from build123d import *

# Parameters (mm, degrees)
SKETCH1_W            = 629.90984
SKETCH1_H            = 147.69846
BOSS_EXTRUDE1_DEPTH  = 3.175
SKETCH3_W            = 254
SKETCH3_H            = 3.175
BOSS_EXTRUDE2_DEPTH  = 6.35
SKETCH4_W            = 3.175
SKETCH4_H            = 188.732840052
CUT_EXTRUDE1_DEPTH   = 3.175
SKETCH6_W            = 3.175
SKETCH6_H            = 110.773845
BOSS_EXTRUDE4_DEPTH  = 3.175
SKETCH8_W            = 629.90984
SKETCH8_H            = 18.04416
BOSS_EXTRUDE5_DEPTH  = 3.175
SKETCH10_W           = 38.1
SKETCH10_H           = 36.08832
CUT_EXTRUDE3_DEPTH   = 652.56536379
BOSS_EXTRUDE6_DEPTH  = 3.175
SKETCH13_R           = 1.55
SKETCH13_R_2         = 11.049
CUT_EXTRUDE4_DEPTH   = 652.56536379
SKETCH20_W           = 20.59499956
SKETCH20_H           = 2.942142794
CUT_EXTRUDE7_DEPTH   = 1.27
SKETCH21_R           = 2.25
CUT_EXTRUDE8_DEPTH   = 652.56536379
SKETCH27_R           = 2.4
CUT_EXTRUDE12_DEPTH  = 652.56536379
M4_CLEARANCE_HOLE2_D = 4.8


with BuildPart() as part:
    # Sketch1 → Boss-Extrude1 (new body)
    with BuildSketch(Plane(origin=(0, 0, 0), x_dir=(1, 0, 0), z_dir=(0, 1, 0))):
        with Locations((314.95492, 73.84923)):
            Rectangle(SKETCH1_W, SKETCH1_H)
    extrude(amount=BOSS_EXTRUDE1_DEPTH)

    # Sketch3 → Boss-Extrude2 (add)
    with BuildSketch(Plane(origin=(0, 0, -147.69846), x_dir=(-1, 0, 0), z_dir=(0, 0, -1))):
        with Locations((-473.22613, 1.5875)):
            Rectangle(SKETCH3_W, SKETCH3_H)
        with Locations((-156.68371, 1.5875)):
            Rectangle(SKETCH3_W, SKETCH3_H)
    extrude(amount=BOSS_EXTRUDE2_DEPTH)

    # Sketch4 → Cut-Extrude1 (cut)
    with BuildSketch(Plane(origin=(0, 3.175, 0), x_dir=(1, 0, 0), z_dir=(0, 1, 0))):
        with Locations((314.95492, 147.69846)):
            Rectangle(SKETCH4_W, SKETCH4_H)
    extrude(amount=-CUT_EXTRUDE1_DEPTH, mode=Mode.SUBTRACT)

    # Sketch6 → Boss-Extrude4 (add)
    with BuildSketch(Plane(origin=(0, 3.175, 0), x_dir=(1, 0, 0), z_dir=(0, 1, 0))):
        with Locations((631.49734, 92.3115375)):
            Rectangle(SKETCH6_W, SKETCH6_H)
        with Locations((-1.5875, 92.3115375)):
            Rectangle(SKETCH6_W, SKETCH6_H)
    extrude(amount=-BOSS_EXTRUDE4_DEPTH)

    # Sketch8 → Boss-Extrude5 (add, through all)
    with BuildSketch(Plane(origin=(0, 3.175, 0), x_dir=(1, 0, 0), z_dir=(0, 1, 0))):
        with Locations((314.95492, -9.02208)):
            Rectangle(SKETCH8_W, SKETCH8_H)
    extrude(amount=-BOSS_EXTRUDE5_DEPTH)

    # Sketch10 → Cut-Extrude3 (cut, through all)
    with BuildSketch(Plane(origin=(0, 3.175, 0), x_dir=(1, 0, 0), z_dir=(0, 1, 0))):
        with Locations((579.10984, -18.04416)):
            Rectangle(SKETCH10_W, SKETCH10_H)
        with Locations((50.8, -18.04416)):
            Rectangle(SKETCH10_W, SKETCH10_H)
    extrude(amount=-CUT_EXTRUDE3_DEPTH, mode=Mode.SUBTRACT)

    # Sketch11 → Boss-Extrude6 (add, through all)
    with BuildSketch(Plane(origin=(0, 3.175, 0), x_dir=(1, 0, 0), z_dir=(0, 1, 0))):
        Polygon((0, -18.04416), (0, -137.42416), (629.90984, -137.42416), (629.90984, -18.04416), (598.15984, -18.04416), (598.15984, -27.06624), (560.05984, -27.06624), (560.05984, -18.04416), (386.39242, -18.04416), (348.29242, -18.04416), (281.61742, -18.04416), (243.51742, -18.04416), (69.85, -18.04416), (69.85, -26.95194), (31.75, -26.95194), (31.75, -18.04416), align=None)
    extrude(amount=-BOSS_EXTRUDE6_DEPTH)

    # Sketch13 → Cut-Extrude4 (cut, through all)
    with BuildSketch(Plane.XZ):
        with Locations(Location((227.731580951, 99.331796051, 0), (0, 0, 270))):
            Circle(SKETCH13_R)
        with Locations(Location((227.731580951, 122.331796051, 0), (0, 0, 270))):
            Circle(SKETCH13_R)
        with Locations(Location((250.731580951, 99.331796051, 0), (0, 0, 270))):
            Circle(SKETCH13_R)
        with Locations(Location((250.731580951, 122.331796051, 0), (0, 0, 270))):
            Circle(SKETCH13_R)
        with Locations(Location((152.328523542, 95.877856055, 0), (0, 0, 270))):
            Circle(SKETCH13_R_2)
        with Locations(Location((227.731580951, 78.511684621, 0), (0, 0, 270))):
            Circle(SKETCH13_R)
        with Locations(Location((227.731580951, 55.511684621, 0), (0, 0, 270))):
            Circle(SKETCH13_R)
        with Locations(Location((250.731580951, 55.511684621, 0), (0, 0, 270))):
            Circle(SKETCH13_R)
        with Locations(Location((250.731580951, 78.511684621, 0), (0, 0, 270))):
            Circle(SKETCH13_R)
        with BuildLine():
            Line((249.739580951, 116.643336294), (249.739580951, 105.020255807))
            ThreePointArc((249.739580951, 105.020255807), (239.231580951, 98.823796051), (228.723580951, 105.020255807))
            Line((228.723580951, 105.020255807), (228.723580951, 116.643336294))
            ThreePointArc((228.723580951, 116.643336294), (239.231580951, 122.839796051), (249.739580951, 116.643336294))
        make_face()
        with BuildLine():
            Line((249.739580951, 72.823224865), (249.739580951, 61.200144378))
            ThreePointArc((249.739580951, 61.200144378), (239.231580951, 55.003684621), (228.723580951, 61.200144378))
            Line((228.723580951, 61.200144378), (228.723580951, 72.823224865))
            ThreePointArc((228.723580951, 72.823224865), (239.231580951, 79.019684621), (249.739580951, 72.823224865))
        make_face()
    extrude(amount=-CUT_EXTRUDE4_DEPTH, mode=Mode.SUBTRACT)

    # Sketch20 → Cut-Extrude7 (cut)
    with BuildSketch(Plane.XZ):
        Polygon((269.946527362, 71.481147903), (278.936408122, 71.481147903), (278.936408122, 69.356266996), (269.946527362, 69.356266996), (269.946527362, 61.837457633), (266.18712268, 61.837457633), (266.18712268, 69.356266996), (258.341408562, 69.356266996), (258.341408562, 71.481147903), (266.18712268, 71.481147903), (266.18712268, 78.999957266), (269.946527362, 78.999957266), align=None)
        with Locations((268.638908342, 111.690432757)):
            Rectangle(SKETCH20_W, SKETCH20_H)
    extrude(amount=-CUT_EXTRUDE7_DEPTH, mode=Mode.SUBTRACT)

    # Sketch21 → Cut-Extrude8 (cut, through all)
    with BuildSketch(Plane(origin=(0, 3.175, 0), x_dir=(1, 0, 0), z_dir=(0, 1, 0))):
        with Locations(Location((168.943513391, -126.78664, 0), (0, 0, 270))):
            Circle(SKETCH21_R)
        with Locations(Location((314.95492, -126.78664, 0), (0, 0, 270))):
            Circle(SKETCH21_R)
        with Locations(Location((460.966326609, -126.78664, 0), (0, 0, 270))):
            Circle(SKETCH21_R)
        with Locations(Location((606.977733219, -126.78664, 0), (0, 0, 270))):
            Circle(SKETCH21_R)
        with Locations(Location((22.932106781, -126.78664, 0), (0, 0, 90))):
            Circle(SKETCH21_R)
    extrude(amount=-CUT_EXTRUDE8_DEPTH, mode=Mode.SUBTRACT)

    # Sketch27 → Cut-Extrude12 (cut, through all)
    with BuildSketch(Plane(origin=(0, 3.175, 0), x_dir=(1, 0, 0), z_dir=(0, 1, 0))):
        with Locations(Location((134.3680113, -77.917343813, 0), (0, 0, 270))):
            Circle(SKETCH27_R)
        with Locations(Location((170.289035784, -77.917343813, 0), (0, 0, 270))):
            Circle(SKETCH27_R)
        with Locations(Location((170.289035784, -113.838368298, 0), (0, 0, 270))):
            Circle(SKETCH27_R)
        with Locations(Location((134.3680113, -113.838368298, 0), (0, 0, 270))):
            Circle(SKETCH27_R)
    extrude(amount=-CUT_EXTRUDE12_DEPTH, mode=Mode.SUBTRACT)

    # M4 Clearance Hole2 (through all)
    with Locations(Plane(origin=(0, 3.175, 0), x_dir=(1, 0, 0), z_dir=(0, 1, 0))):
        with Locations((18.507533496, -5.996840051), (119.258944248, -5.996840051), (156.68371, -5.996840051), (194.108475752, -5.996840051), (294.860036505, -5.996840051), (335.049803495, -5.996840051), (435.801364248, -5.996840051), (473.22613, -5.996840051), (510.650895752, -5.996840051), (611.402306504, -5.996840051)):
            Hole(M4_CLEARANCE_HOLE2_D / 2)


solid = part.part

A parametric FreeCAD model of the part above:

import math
import FreeCAD as App
import Part
import Sketcher
Q = App.Units.Quantity


def add_polygon(sketch, points):
    """Adds a closed chain of lines whose ends are joined by coincident constraints."""
    first, n = sketch.GeometryCount, len(points)
    for a, b in zip(points, points[1:] + points[:1]):
        sketch.addGeometry(Part.LineSegment(App.Vector(*a, 0), App.Vector(*b, 0)), False)
    for i in range(n):
        sketch.addConstraint(Sketcher.Constraint("Coincident", first + i, 2, first + (i + 1) % n, 1))

doc = App.newDocument("Part")
body = doc.addObject("PartDesign::Body", "Body")

# Sketch on XZ plane
sketch1 = body.newObject("Sketcher::SketchObject", "Sketch")
sketch1.AttachmentSupport = (doc.getObject("XZ_Plane"), [""])
sketch1.MapMode = "FlatFace"
add_polygon(sketch1, [(0, -148), (0, 0), (630, 0), (630, -148)])  # lines 0-3
sketch1.addConstraint([
    Sketcher.Constraint("Vertical", 0),
    Sketcher.Constraint("Horizontal", 1),
    Sketcher.Constraint("Vertical", 2),
    Sketcher.Constraint("Horizontal", 3),
    Sketcher.Constraint("Coincident", 0, 2, -1, 1),
    Sketcher.Constraint("DistanceX", 1, 1, 1, 2, Q("24.7996 in")),
    Sketcher.Constraint("DistanceY", 0, 1, 0, 2, Q("5.8149 in")),
])
pad1 = body.newObject("PartDesign::Pad", "Pad")
pad1.Profile = sketch1
pad1.Length = Q("0.125 in")
pad1.Reversed = True

# Sketch on XY plane
sketch2 = body.newObject("Sketcher::SketchObject", "Sketch001")
sketch2.AttachmentSupport = (doc.getObject("XY_Plane"), [""])
sketch2.MapMode = "FlatFace"
sketch2.AttachmentOffset = App.Placement(App.Vector(0, 0, -5.8149 * 25.4), App.Rotation())
add_polygon(sketch2, [(600.2, 3.2), (600.2, 0), (346.2, 0), (346.2, 3.2)])  # lines 0-3
add_polygon(sketch2, [(283.7, 3.2), (283.7, 0), (29.7, 0), (29.7, 3.2)])  # lines 4-7
sketch2.addConstraint([
    Sketcher.Constraint("Vertical", 0),
    Sketcher.Constraint("Horizontal", 1),
    Sketcher.Constraint("Vertical", 2),
    Sketcher.Constraint("Horizontal", 3),
    Sketcher.Constraint("Vertical", 4),
    Sketcher.Constraint("Horizontal", 5),
    Sketcher.Constraint("Vertical", 6),
    Sketcher.Constraint("Horizontal", 7),
    Sketcher.Constraint("PointOnObject", 0, 2, -1),
    Sketcher.Constraint("PointOnObject", 4, 2, -1),
    Sketcher.Constraint("Horizontal", 3, 2, 6, 2),
    Sketcher.Constraint("Equal", 3, 5),
    Sketcher.Constraint("DistanceX", 1, 2, 1, 1, Q("10 in")),
    Sketcher.Constraint("DistanceY", 0, 2, 0, 1, Q("0.125 in")),
    Sketcher.Constraint("DistanceX", 4, 2, 1, 2, Q("2.4623 in")),
    Sketcher.Constraint("DistanceX", -1, 1, 0, 2, 600.22613),
])
pad2 = body.newObject("PartDesign::Pad", "Pad001")
pad2.Profile = sketch2
pad2.Length = Q("0.25 in")
pad2.Reversed = True

# Sketch on XZ plane
sketch3 = body.newObject("Sketcher::SketchObject", "Sketch002")
sketch3.AttachmentSupport = (doc.getObject("XZ_Plane"), [""])
sketch3.MapMode = "FlatFace"
sketch3.AttachmentOffset = App.Placement(App.Vector(0, 0, -0.125 * 25.4), App.Rotation())
add_polygon(sketch3, [(313.4, -242.1), (313.4, -53.3), (316.5, -53.3), (316.5, -242.1)])  # lines 0-3
sketch3.addConstraint([
    Sketcher.Constraint("Vertical", 0),
    Sketcher.Constraint("Horizontal", 1),
    Sketcher.Constraint("Vertical", 2),
    Sketcher.Constraint("Horizontal", 3),
    Sketcher.Constraint("DistanceX", 1, 1, 1, 2, Q("0.125 in")),
    Sketcher.Constraint("DistanceX", -1, 1, 0, 2, Q("12.3373 in")),
    Sketcher.Constraint("DistanceY", 0, 1, 0, 2, 188.73284),
    Sketcher.Constraint("DistanceY", 0, 2, -1, 1, 53.33204),
])
pocket1 = body.newObject("PartDesign::Pocket", "Pocket")
pocket1.Profile = sketch3
pocket1.Length = Q("0.125 in")
pocket1.Reversed = True

# Sketch on XZ plane
sketch4 = body.newObject("Sketcher::SketchObject", "Sketch003")
sketch4.AttachmentSupport = (doc.getObject("XZ_Plane"), [""])
sketch4.MapMode = "FlatFace"
sketch4.AttachmentOffset = App.Placement(App.Vector(0, 0, -0.125 * 25.4), App.Rotation())
add_polygon(sketch4, [(629.9, -147.7), (629.9, -36.9), (633.1, -36.9), (633.1, -147.7)])  # lines 0-3
add_polygon(sketch4, [(-3.2, -147.7), (-3.2, -36.9), (0, -36.9), (0, -147.7)])  # lines 4-7
sketch4.addConstraint([
    Sketcher.Constraint("Vertical", 0),
    Sketcher.Constraint("Horizontal", 1),
    Sketcher.Constraint("Vertical", 2),
    Sketcher.Constraint("Horizontal", 3),
    Sketcher.Constraint("Vertical", 4),
    Sketcher.Constraint("Horizontal", 5),
    Sketcher.Constraint("Vertical", 6),
    Sketcher.Constraint("Horizontal", 7),
    Sketcher.Constraint("PointOnObject", 5, 2, -2),
    Sketcher.Constraint("Horizontal", 1, 2, 4, 2),
    Sketcher.Constraint("Horizontal", 3, 2, 6, 2),
    Sketcher.Constraint("Equal", 3, 5),
    Sketcher.Constraint("DistanceX", 1, 1, 1, 2, Q("0.125 in")),
    Sketcher.Constraint("DistanceX", -1, 1, 0, 2, Q("24.7996 in")),
    Sketcher.Constraint("DistanceY", 2, 2, -1, 1, Q("5.8149 in")),
    Sketcher.Constraint("DistanceY", 0, 1, 0, 2, 110.773845),
])
pad3 = body.newObject("PartDesign::Pad", "Pad002")
pad3.Profile = sketch4
pad3.Length = Q("0.125 in")

# Sketch on XZ plane
sketch5 = body.newObject("Sketcher::SketchObject", "Sketch004")
sketch5.AttachmentSupport = (doc.getObject("XZ_Plane"), [""])
sketch5.MapMode = "FlatFace"
sketch5.AttachmentOffset = App.Placement(App.Vector(0, 0, -0.125 * 25.4), App.Rotation())
add_polygon(sketch5, [(0, 0), (0, 18), (630, 18), (630, 0)])  # lines 0-3
sketch5.addConstraint([
    Sketcher.Constraint("Vertical", 0),
    Sketcher.Constraint("Horizontal", 1),
    Sketcher.Constraint("Vertical", 2),
    Sketcher.Constraint("Horizontal", 3),
    Sketcher.Constraint("Coincident", 3, 2, -1, 1),
    Sketcher.Constraint("DistanceX", 1, 1, 1, 2, Q("24.7996 in")),
    Sketcher.Constraint("DistanceY", 0, 1, 0, 2, Q("0.7104 in")),
])
pad4 = body.newObject("PartDesign::Pad", "Pad003")
pad4.Profile = sketch5
pad4.Length = Q("0.125 in")

# Sketch on XZ plane
sketch6 = body.newObject("Sketcher::SketchObject", "Sketch005")
sketch6.AttachmentSupport = (doc.getObject("XZ_Plane"), [""])
sketch6.MapMode = "FlatFace"
sketch6.AttachmentOffset = App.Placement(App.Vector(0, 0, -0.125 * 25.4), App.Rotation())
add_polygon(sketch6, [(560, 0), (560, 36), (598, 36), (598, 0)])  # lines 0-3
add_polygon(sketch6, [(32, 0), (32, 36), (70, 36), (70, 0)])  # lines 4-7
sketch6.addConstraint([
    Sketcher.Constraint("Vertical", 0),
    Sketcher.Constraint("Horizontal", 1),
    Sketcher.Constraint("Vertical", 2),
    Sketcher.Constraint("Horizontal", 3),
    Sketcher.Constraint("Vertical", 4),
    Sketcher.Constraint("Horizontal", 5),
    Sketcher.Constraint("Vertical", 6),
    Sketcher.Constraint("Horizontal", 7),
    Sketcher.Constraint("PointOnObject", 2, 2, -1),
    Sketcher.Constraint("PointOnObject", 6, 2, -1),
    Sketcher.Constraint("Horizontal", 1, 2, 4, 2),
    Sketcher.Constraint("Equal", 3, 5),
    Sketcher.Constraint("DistanceX", 1, 1, 1, 2, Q("1.5 in")),
    Sketcher.Constraint("DistanceX", -1, 1, 4, 2, Q("1.25 in")),
    Sketcher.Constraint("DistanceY", 0, 1, 0, 2, Q("1.4208 in")),
    Sketcher.Constraint("DistanceX", -1, 1, 0, 2, Q("22.0496 in")),
])
pocket2 = body.newObject("PartDesign::Pocket", "Pocket001")
pocket2.Profile = sketch6
pocket2.Type = "ThroughAll"
pocket2.Reversed = True

# Sketch on XZ plane
sketch7 = body.newObject("Sketcher::SketchObject", "Sketch006")
sketch7.AttachmentSupport = (doc.getObject("XZ_Plane"), [""])
sketch7.MapMode = "FlatFace"
sketch7.AttachmentOffset = App.Placement(App.Vector(0, 0, -0.125 * 25.4), App.Rotation())
add_polygon(sketch7, [(0, 18), (0, 137), (630, 137), (630, 18), (598, 18), (598, 27), (560, 27), (560, 18), (70, 18), (70, 27), (32, 27), (32, 18)])  # lines 0-11
sketch7.addConstraint([
    Sketcher.Constraint("Vertical", 0),
    Sketcher.Constraint("Horizontal", 1),
    Sketcher.Constraint("Vertical", 2),
    Sketcher.Constraint("Horizontal", 3),
    Sketcher.Constraint("Vertical", 4),
    Sketcher.Constraint("Horizontal", 5),
    Sketcher.Constraint("Vertical", 6),
    Sketcher.Constraint("Horizontal", 7),
    Sketcher.Constraint("Vertical", 8),
    Sketcher.Constraint("Horizontal", 9),
    Sketcher.Constraint("Vertical", 10),
    Sketcher.Constraint("Horizontal", 11),
    Sketcher.Constraint("PointOnObject", 0, 2, -2),
    Sketcher.Constraint("Horizontal", 3, 2, 6, 2),
    Sketcher.Constraint("Horizontal", 7, 2, 10, 2),
    Sketcher.Constraint("Equal", 5, 9),
    Sketcher.Constraint("Equal", 3, 11),
    Sketcher.Constraint("DistanceX", 5, 2, 5, 1, Q("1.5 in")),
    Sketcher.Constraint("DistanceY", 0, 1, 0, 2, Q("4.7 in")),
    Sketcher.Constraint("DistanceX", 3, 2, 3, 1, Q("1.25 in")),
    Sketcher.Constraint("DistanceX", 1, 1, 1, 2, Q("24.7996 in")),
    Sketcher.Constraint("DistanceY", 4, 1, 4, 2, Q("0.3552 in")),
    Sketcher.Constraint("DistanceY", 8, 1, 8, 2, Q("0.3507 in")),
    Sketcher.Constraint("DistanceY", -1, 1, 0, 2, Q("5.4104 in")),
])
pad5 = body.newObject("PartDesign::Pad", "Pad004")
pad5.Profile = sketch7
pad5.Length = Q("0.125 in")

# Sketch on XZ plane
sketch8 = body.newObject("Sketcher::SketchObject", "Sketch007")
sketch8.AttachmentSupport = (doc.getObject("XZ_Plane"), [""])
sketch8.MapMode = "FlatFace"
sketch8.addGeometry([
    Part.Circle(App.Vector(227.7, 99.3, 0), App.Vector(0, 0, 1), 1.6),  # 0
    Part.Circle(App.Vector(227.7, 122.3, 0), App.Vector(0, 0, 1), 1.6),  # 1
    Part.Circle(App.Vector(250.7, 99.3, 0), App.Vector(0, 0, 1), 1.6),  # 2
    Part.Circle(App.Vector(250.7, 122.3, 0), App.Vector(0, 0, 1), 1.6),  # 3
    Part.Circle(App.Vector(152.3, 95.9, 0), App.Vector(0, 0, 1), 11),  # 4
    Part.Circle(App.Vector(227.7, 78.5, 0), App.Vector(0, 0, 1), 1.6),  # 5
    Part.Circle(App.Vector(227.7, 55.5, 0), App.Vector(0, 0, 1), 1.6),  # 6
    Part.Circle(App.Vector(250.7, 55.5, 0), App.Vector(0, 0, 1), 1.6),  # 7
    Part.Circle(App.Vector(250.7, 78.5, 0), App.Vector(0, 0, 1), 1.6),  # 8
    Part.LineSegment(App.Vector(249.7, 105, 0), App.Vector(249.7, 116.6, 0)),  # 9
    Part.ArcOfCircle(Part.Circle(App.Vector(239.2, 110.8, 0), App.Vector(0, 0, 1), 12), math.radians(29), math.radians(151)),  # 10
    Part.LineSegment(App.Vector(228.7, 116.6, 0), App.Vector(228.7, 105, 0)),  # 11
    Part.ArcOfCircle(Part.Circle(App.Vector(239.2, 110.8, 0), App.Vector(0, 0, 1), 12), math.radians(-151), math.radians(-29)),  # 12
    Part.LineSegment(App.Vector(249.7, 61.2, 0), App.Vector(249.7, 72.8, 0)),  # 13
    Part.ArcOfCircle(Part.Circle(App.Vector(239.2, 67, 0), App.Vector(0, 0, 1), 12), math.radians(29), math.radians(151)),  # 14
    Part.LineSegment(App.Vector(228.7, 72.8, 0), App.Vector(228.7, 61.2, 0)),  # 15
    Part.ArcOfCircle(Part.Circle(App.Vector(239.2, 67, 0), App.Vector(0, 0, 1), 12), math.radians(-151), math.radians(-29)),  # 16
], False)
sketch8.addConstraint([
    Sketcher.Constraint("Coincident", 9, 2, 10, 1),
    Sketcher.Constraint("Coincident", 10, 2, 11, 1),
    Sketcher.Constraint("Coincident", 11, 2, 12, 1),
    Sketcher.Constraint("Coincident", 12, 2, 9, 1),
    Sketcher.Constraint("Coincident", 13, 2, 14, 1),
    Sketcher.Constraint("Coincident", 14, 2, 15, 1),
    Sketcher.Constraint("Coincident", 15, 2, 16, 1),
    Sketcher.Constraint("Coincident", 16, 2, 13, 1),
    Sketcher.Constraint("Vertical", 9),
    Sketcher.Constraint("Vertical", 11),
    Sketcher.Constraint("Vertical", 13),
    Sketcher.Constraint("Vertical", 15),
    Sketcher.Constraint("Coincident", 12, 3, 10, 3),
    Sketcher.Constraint("Coincident", 16, 3, 14, 3),
    Sketcher.Constraint("Equal", 0, 1),
    Sketcher.Constraint("Equal", 1, 2),
    Sketcher.Constraint("Equal", 2, 3),
    Sketcher.Constraint("Equal", 3, 5),
    Sketcher.Constraint("Equal", 5, 6),
    Sketcher.Constraint("Equal", 6, 7),
    Sketcher.Constraint("Equal", 7, 8),
    Sketcher.Constraint("Equal", 10, 12),
    Sketcher.Constraint("Equal", 12, 14),
    Sketcher.Constraint("Equal", 14, 16),
    Sketcher.Constraint("Horizontal", 0, 3, 2, 3),
    Sketcher.Constraint("Horizontal", 1, 3, 3, 3),
    Sketcher.Constraint("Horizontal", 6, 3, 7, 3),
    Sketcher.Constraint("Horizontal", 5, 3, 8, 3),
    Sketcher.Constraint("Horizontal", 9, 2, 10, 2),
    Sketcher.Constraint("Horizontal", 13, 2, 14, 2),
    Sketcher.Constraint("Vertical", 0, 3, 1, 3),
    Sketcher.Constraint("Vertical", 2, 3, 3, 3),
    Sketcher.Constraint("Vertical", 1, 3, 5, 3),
    Sketcher.Constraint("Vertical", 5, 3, 6, 3),
    Sketcher.Constraint("Vertical", 3, 3, 7, 3),
    Sketcher.Constraint("Vertical", 7, 3, 8, 3),
    Sketcher.Constraint("Vertical", 12, 3, 14, 3),
    Sketcher.Constraint("Vertical", 12, 2, 13, 2),
    Sketcher.Constraint("Diameter", 4, Q("0.87 in")),
    Sketcher.Constraint("Diameter", 0, 3.1),
    Sketcher.Constraint("Radius", 10, 12.008),
    Sketcher.Constraint("DistanceY", 9, 1, 9, 2, 11.62308),
    Sketcher.Constraint("DistanceY", 0, 3, 1, 3, 23.0),
    Sketcher.Constraint("DistanceX", 0, 3, 2, 3, 23.0),
    Sketcher.Constraint("DistanceY", 6, 3, 5, 3, 23.0),
    Sketcher.Constraint("DistanceX", 0, 3, 10, 3, 11.5),
    Sketcher.Constraint("DistanceY", 0, 3, 10, 3, 11.5),
    Sketcher.Constraint("DistanceY", 6, 3, 14, 3, 11.5),
    Sketcher.Constraint("DistanceX", -1, 1, 0, 3, 227.731581),
    Sketcher.Constraint("DistanceY", 4, 3, 0, 3, 3.45394),
    Sketcher.Constraint("DistanceY", 5, 3, 0, 3, 20.820111),
    Sketcher.Constraint("DistanceY", -1, 1, 0, 3, 99.331796),
    Sketcher.Constraint("DistanceX", -1, 1, 4, 3, 152.328524),
])
pocket3 = body.newObject("PartDesign::Pocket", "Pocket002")
pocket3.Profile = sketch8
pocket3.Type = "ThroughAll"

# Sketch on XZ plane
sketch9 = body.newObject("Sketcher::SketchObject", "Sketch008")
sketch9.AttachmentSupport = (doc.getObject("XZ_Plane"), [""])
sketch9.MapMode = "FlatFace"
add_polygon(sketch9, [(278.9, 71.5), (269.9, 71.5), (269.9, 79), (266.2, 79), (266.2, 71.5), (258.3, 71.5), (258.3, 69.4), (266.2, 69.4), (266.2, 61.8), (269.9, 61.8), (269.9, 69.4), (278.9, 69.4)])  # lines 0-11
add_polygon(sketch9, [(258.3, 113.2), (258.3, 110.2), (278.9, 110.2), (278.9, 113.2)])  # lines 12-15
sketch9.addConstraint([
    Sketcher.Constraint("Horizontal", 0),
    Sketcher.Constraint("Vertical", 1),
    Sketcher.Constraint("Horizontal", 2),
    Sketcher.Constraint("Vertical", 3),
    Sketcher.Constraint("Horizontal", 4),
    Sketcher.Constraint("Vertical", 5),
    Sketcher.Constraint("Horizontal", 6),
    Sketcher.Constraint("Vertical", 7),
    Sketcher.Constraint("Horizontal", 8),
    Sketcher.Constraint("Vertical", 9),
    Sketcher.Constraint("Horizontal", 10),
    Sketcher.Constraint("Vertical", 11),
    Sketcher.Constraint("Vertical", 12),
    Sketcher.Constraint("Horizontal", 13),
    Sketcher.Constraint("Vertical", 14),
    Sketcher.Constraint("Horizontal", 15),
    Sketcher.Constraint("Horizontal", 0, 2, 3, 2),
    Sketcher.Constraint("Horizontal", 6, 2, 9, 2),
    Sketcher.Constraint("Vertical", 3, 2, 6, 2),
    Sketcher.Constraint("Vertical", 1, 2, 8, 2),
    Sketcher.Constraint("Vertical", 5, 2, 12, 2),
    Sketcher.Constraint("Vertical", 11, 2, 13, 2),
    Sketcher.Constraint("Equal", 3, 7),
    Sketcher.Constraint("DistanceX", 13, 1, 13, 2, 20.595),
    Sketcher.Constraint("DistanceX", 0, 2, 0, 1, 8.989881),
    Sketcher.Constraint("DistanceY", 1, 1, 1, 2, 7.518809),
    Sketcher.Constraint("DistanceY", 5, 2, 5, 1, 2.124881),
    Sketcher.Constraint("DistanceX", 2, 2, 2, 1, 3.759405),
    Sketcher.Constraint("DistanceY", 12, 2, 12, 1, 2.942143),
    Sketcher.Constraint("DistanceX", -1, 1, 4, 2, 258.341409),
    Sketcher.Constraint("DistanceY", -1, 1, 12, 2, 110.219361),
    Sketcher.Constraint("DistanceY", -1, 1, 0, 2, 71.481148),
])
pocket4 = body.newObject("PartDesign::Pocket", "Pocket003")
pocket4.Profile = sketch9
pocket4.Length = Q("0.05 in")

# Sketch on XZ plane
sketch10 = body.newObject("Sketcher::SketchObject", "Sketch009")
sketch10.AttachmentSupport = (doc.getObject("XZ_Plane"), [""])
sketch10.MapMode = "FlatFace"
sketch10.AttachmentOffset = App.Placement(App.Vector(0, 0, -0.125 * 25.4), App.Rotation())
sketch10.addGeometry([
    Part.Circle(App.Vector(168.9, 126.8, 0), App.Vector(0, 0, 1), 2.2),  # 0
    Part.Circle(App.Vector(315, 126.8, 0), App.Vector(0, 0, 1), 2.2),  # 1
    Part.Circle(App.Vector(461, 126.8, 0), App.Vector(0, 0, 1), 2.2),  # 2
    Part.Circle(App.Vector(607, 126.8, 0), App.Vector(0, 0, 1), 2.2),  # 3
    Part.Circle(App.Vector(22.9, 126.8, 0), App.Vector(0, 0, 1), 2.2),  # 4
], False)
sketch10.addConstraint([
    Sketcher.Constraint("Equal", 0, 1),
    Sketcher.Constraint("Equal", 1, 2),
    Sketcher.Constraint("Equal", 2, 3),
    Sketcher.Constraint("Equal", 3, 4),
    Sketcher.Constraint("Horizontal", 0, 3, 1, 3),
    Sketcher.Constraint("Horizontal", 1, 3, 2, 3),
    Sketcher.Constraint("Horizontal", 2, 3, 3, 3),
    Sketcher.Constraint("Horizontal", 3, 3, 4, 3),
    Sketcher.Constraint("Diameter", 0, 4.5),
    Sketcher.Constraint("DistanceY", -1, 1, 0, 3, Q("4.9916 in")),
    Sketcher.Constraint("DistanceX", -1, 1, 1, 3, Q("12.3998 in")),
    Sketcher.Constraint("DistanceX", 0, 3, 3, 3, 438.03422),
    Sketcher.Constraint("DistanceX", 4, 3, 2, 3, 438.03422),
    Sketcher.Constraint("DistanceX", -1, 1, 0, 3, 168.943513),
    Sketcher.Constraint("DistanceX", -1, 1, 2, 3, 460.966327),
])
pocket5 = body.newObject("PartDesign::Pocket", "Pocket004")
pocket5.Profile = sketch10
pocket5.Type = "ThroughAll"
pocket5.Reversed = True

# Sketch on XZ plane
sketch11 = body.newObject("Sketcher::SketchObject", "Sketch010")
sketch11.AttachmentSupport = (doc.getObject("XZ_Plane"), [""])
sketch11.MapMode = "FlatFace"
sketch11.AttachmentOffset = App.Placement(App.Vector(0, 0, -0.125 * 25.4), App.Rotation())
sketch11.addGeometry([
    Part.Circle(App.Vector(134.4, 77.9, 0), App.Vector(0, 0, 1), 2.4),
    Part.Circle(App.Vector(170.3, 77.9, 0), App.Vector(0, 0, 1), 2.4),
    Part.Circle(App.Vector(170.3, 113.8, 0), App.Vector(0, 0, 1), 2.4),
    Part.Circle(App.Vector(134.4, 113.8, 0), App.Vector(0, 0, 1), 2.4),
], False)
sketch11.addConstraint([
    Sketcher.Constraint("Equal", 0, 1),
    Sketcher.Constraint("Equal", 1, 2),
    Sketcher.Constraint("Equal", 2, 3),
    Sketcher.Constraint("Horizontal", 0, 3, 1, 3),
    Sketcher.Constraint("Horizontal", 2, 3, 3, 3),
    Sketcher.Constraint("Vertical", 1, 3, 2, 3),
    Sketcher.Constraint("Vertical", 0, 3, 3, 3),
    Sketcher.Constraint("Diameter", 0, 4.8),
    Sketcher.Constraint("DistanceX", -1, 1, 0, 3, 134.368011),
    Sketcher.Constraint("DistanceY", -1, 1, 2, 3, 113.838368),
    Sketcher.Constraint("DistanceY", -1, 1, 0, 3, 77.917344),
    Sketcher.Constraint("DistanceX", -1, 1, 1, 3, 170.289036),
])
pocket6 = body.newObject("PartDesign::Pocket", "Pocket005")
pocket6.Profile = sketch11
pocket6.Type = "ThroughAll"
pocket6.Reversed = True

# Sketch on XZ plane
sketch12 = body.newObject("Sketcher::SketchObject", "Sketch011")
sketch12.AttachmentSupport = (doc.getObject("XZ_Plane"), [""])
sketch12.MapMode = "FlatFace"
sketch12.AttachmentOffset = App.Placement(App.Vector(0, 0, -0.125 * 25.4), App.Rotation())
sketch12.addGeometry([
    Part.Circle(App.Vector(18.5, 6, 0), App.Vector(0, 0, 1), 2.4),  # 0
    Part.Circle(App.Vector(119.3, 6, 0), App.Vector(0, 0, 1), 2.4),  # 1
    Part.Circle(App.Vector(156.7, 6, 0), App.Vector(0, 0, 1), 2.4),  # 2
    Part.Circle(App.Vector(194.1, 6, 0), App.Vector(0, 0, 1), 2.4),  # 3
    Part.Circle(App.Vector(294.9, 6, 0), App.Vector(0, 0, 1), 2.4),  # 4
    Part.Circle(App.Vector(335, 6, 0), App.Vector(0, 0, 1), 2.4),  # 5
    Part.Circle(App.Vector(435.8, 6, 0), App.Vector(0, 0, 1), 2.4),  # 6
    Part.Circle(App.Vector(473.2, 6, 0), App.Vector(0, 0, 1), 2.4),  # 7
    Part.Circle(App.Vector(510.7, 6, 0), App.Vector(0, 0, 1), 2.4),  # 8
    Part.Circle(App.Vector(611.4, 6, 0), App.Vector(0, 0, 1), 2.4),  # 9
], False)
sketch12.addConstraint([
    Sketcher.Constraint("Equal", 0, 1),
    Sketcher.Constraint("Equal", 1, 2),
    Sketcher.Constraint("Equal", 2, 3),
    Sketcher.Constraint("Equal", 3, 4),
    Sketcher.Constraint("Equal", 4, 5),
    Sketcher.Constraint("Equal", 5, 6),
    Sketcher.Constraint("Equal", 6, 7),
    Sketcher.Constraint("Equal", 7, 8),
    Sketcher.Constraint("Equal", 8, 9),
    Sketcher.Constraint("Horizontal", 0, 3, 1, 3),
    Sketcher.Constraint("Horizontal", 1, 3, 2, 3),
    Sketcher.Constraint("Horizontal", 2, 3, 3, 3),
    Sketcher.Constraint("Horizontal", 3, 3, 4, 3),
    Sketcher.Constraint("Horizontal", 4, 3, 5, 3),
    Sketcher.Constraint("Horizontal", 5, 3, 6, 3),
    Sketcher.Constraint("Horizontal", 6, 3, 7, 3),
    Sketcher.Constraint("Horizontal", 7, 3, 8, 3),
    Sketcher.Constraint("Horizontal", 8, 3, 9, 3),
    Sketcher.Constraint("Diameter", 0, 4.8),
    Sketcher.Constraint("DistanceX", 1, 3, 6, 3, Q("12.4623 in")),
    Sketcher.Constraint("DistanceX", 2, 3, 7, 3, Q("12.4623 in")),
    Sketcher.Constraint("DistanceX", 3, 3, 8, 3, Q("12.4623 in")),
    Sketcher.Constraint("DistanceY", -1, 1, 0, 3, 5.99684),
    Sketcher.Constraint("DistanceX", -1, 1, 2, 3, 156.68371),
    Sketcher.Constraint("DistanceX", 0, 3, 1, 3, 100.751411),
    Sketcher.Constraint("DistanceX", 1, 3, 3, 3, 74.849532),
    Sketcher.Constraint("DistanceX", 3, 3, 4, 3, 100.751561),
    Sketcher.Constraint("DistanceX", 1, 3, 5, 3, 215.790859),
    Sketcher.Constraint("DistanceX", 8, 3, 9, 3, 100.751411),
    Sketcher.Constraint("DistanceX", -1, 1, 0, 3, 18.507533),
])
doc.recompute()
hole = body.newObject("PartDesign::Hole", "Hole")
hole.Profile = sketch12
hole.ThreadType = "None"
hole.Diameter = 4.8
hole.DepthType = "ThroughAll"
hole.Reversed = True

doc.recompute()
